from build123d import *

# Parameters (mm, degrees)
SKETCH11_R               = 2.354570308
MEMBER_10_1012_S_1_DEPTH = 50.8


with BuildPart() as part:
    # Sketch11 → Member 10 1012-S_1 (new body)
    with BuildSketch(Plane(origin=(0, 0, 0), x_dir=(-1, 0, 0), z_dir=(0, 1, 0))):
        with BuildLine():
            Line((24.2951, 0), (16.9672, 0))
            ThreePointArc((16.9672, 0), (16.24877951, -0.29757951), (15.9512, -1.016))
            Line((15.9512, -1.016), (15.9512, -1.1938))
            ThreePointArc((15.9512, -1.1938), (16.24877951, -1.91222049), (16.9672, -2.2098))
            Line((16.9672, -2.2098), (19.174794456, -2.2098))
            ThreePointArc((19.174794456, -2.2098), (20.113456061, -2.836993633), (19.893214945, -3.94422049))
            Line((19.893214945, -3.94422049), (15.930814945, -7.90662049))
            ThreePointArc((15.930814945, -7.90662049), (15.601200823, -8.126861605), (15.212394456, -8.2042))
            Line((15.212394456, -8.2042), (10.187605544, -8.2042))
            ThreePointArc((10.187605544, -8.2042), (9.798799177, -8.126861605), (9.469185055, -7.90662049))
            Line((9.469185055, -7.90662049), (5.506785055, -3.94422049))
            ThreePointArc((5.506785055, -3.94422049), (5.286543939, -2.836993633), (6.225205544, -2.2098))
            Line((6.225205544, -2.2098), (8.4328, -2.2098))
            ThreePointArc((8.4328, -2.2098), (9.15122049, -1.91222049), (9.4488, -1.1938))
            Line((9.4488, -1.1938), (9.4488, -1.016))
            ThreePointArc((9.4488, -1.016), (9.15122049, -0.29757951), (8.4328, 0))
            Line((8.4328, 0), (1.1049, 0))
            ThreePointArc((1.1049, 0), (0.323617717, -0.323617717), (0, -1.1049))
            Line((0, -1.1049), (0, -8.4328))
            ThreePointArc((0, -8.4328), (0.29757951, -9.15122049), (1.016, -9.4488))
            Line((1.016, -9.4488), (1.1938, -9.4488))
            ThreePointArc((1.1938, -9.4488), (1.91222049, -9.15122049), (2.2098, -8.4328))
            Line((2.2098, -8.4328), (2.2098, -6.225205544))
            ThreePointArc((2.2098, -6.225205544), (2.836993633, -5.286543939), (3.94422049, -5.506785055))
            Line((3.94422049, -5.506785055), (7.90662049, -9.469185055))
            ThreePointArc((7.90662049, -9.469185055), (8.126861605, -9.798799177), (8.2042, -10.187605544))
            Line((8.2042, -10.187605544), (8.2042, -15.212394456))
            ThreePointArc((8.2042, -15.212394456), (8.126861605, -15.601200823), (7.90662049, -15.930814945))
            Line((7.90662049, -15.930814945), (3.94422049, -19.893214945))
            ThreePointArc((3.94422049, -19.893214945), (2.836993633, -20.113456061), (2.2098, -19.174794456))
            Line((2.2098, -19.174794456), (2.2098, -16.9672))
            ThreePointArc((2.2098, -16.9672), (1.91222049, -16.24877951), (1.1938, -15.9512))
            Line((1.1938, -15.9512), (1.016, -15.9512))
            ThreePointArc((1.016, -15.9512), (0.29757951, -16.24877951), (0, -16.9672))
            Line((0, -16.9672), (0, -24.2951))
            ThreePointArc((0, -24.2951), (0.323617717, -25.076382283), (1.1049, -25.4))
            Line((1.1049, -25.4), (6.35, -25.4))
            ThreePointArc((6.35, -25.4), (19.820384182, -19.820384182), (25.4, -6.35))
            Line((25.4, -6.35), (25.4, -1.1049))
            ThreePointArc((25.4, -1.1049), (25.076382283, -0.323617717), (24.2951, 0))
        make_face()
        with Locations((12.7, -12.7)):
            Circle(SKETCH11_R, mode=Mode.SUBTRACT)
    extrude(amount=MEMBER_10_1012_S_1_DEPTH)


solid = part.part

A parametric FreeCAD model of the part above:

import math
import FreeCAD as App
import Part
import Sketcher
Q = App.Units.Quantity

doc = App.newDocument("Part")
params = doc.addObject("Spreadsheet::Sheet", "Params")
for row, (alias, value) in enumerate([
    ("sketch1_radius", "0.04 in"),
    ("sketch1_radius2", "0.75 in"),
    ("sketch1_width", "0.007 in"),
    ("pad1_length", "2 in"),
], start=1):
    params.set(f"A{row}", alias)
    params.set(f"B{row}", "=" + value)
    params.setAlias(f"B{row}", alias)

body = doc.addObject("PartDesign::Body", "Body")

sketch1 = body.newObject("Sketcher::SketchObject", "Sketch")
sketch1.AttachmentSupport = (doc.getObject("XZ_Plane"), [""])
sketch1.MapMode = "FlatFace"
sketch1.addGeometry([
    Part.LineSegment(App.Vector(-24.3, 0, 0), App.Vector(-16.97, 0, 0)),
    Part.ArcOfCircle(Part.Circle(App.Vector(-16.97, -1.02, 0), App.Vector(0, 0, 1), 1.02), math.radians(0), math.radians(90)),
    Part.LineSegment(App.Vector(-15.95, -1.02, 0), App.Vector(-15.95, -1.19, 0)),
    Part.ArcOfCircle(Part.Circle(App.Vector(-16.97, -1.19, 0), App.Vector(0, 0, 1), 1.02), math.radians(-90), math.radians(0)),
    Part.LineSegment(App.Vector(-16.97, -2.21, 0), App.Vector(-19.17, -2.21, 0)),
    Part.ArcOfCircle(Part.Circle(App.Vector(-19.17, -3.23, 0), App.Vector(0, 0, 1), 1.02), math.radians(90), math.radians(225)),
    Part.LineSegment(App.Vector(-19.89, -3.94, 0), App.Vector(-15.93, -7.91, 0)),
    Part.ArcOfCircle(Part.Circle(App.Vector(-15.21, -7.19, 0), App.Vector(0, 0, 1), 1.02), math.radians(-135), math.radians(-90)),
    Part.LineSegment(App.Vector(-15.21, -8.2, 0), App.Vector(-10.19, -8.2, 0)),
    Part.ArcOfCircle(Part.Circle(App.Vector(-10.19, -7.19, 0), App.Vector(0, 0, 1), 1.02), math.radians(-90), math.radians(-45)),
    Part.LineSegment(App.Vector(-9.47, -7.91, 0), App.Vector(-5.51, -3.94, 0)),
    Part.ArcOfCircle(Part.Circle(App.Vector(-6.23, -3.23, 0), App.Vector(0, 0, 1), 1.02), math.radians(-45), math.radians(90)),
    Part.LineSegment(App.Vector(-6.23, -2.21, 0), App.Vector(-8.43, -2.21, 0)),
    Part.ArcOfCircle(Part.Circle(App.Vector(-8.43, -1.19, 0), App.Vector(0, 0, 1), 1.02), math.radians(180), math.radians(270)),
    Part.LineSegment(App.Vector(-9.45, -1.19, 0), App.Vector(-9.45, -1.02, 0)),
    Part.ArcOfCircle(Part.Circle(App.Vector(-8.43, -1.02, 0), App.Vector(0, 0, 1), 1.02), math.radians(90), math.radians(180)),
    Part.LineSegment(App.Vector(-8.43, 0, 0), App.Vector(-1.1, 0, 0)),
    Part.ArcOfCircle(Part.Circle(App.Vector(-1.1, -1.1, 0), App.Vector(0, 0, 1), 1.1), math.radians(0), math.radians(90)),
    Part.LineSegment(App.Vector(0, -1.1, 0), App.Vector(0, -8.43, 0)),
    Part.ArcOfCircle(Part.Circle(App.Vector(-1.02, -8.43, 0), App.Vector(0, 0, 1), 1.02), math.radians(-90), math.radians(0)),
    Part.LineSegment(App.Vector(-1.02, -9.45, 0), App.Vector(-1.19, -9.45, 0)),
    Part.ArcOfCircle(Part.Circle(App.Vector(-1.19, -8.43, 0), App.Vector(0, 0, 1), 1.02), math.radians(180), math.radians(270)),
    Part.LineSegment(App.Vector(-2.21, -8.43, 0), App.Vector(-2.21, -6.23, 0)),
    Part.ArcOfCircle(Part.Circle(App.Vector(-3.23, -6.23, 0), App.Vector(0, 0, 1), 1.02), math.radians(0), math.radians(135)),
    Part.LineSegment(App.Vector(-3.94, -5.51, 0), App.Vector(-7.91, -9.47, 0)),
    Part.ArcOfCircle(Part.Circle(App.Vector(-7.19, -10.19, 0), App.Vector(0, 0, 1), 1.02), math.radians(135), math.radians(180)),
    Part.LineSegment(App.Vector(-8.2, -10.19, 0), App.Vector(-8.2, -15.21, 0)),
    Part.ArcOfCircle(Part.Circle(App.Vector(-7.19, -15.21, 0), App.Vector(0, 0, 1), 1.02), math.radians(180), math.radians(225)),
    Part.LineSegment(App.Vector(-7.91, -15.93, 0), App.Vector(-3.94, -19.89, 0)),
    Part.ArcOfCircle(Part.Circle(App.Vector(-3.23, -19.17, 0), App.Vector(0, 0, 1), 1.02), math.radians(-135), math.radians(0)),
    Part.LineSegment(App.Vector(-2.21, -19.17, 0), App.Vector(-2.21, -16.97, 0)),
    Part.ArcOfCircle(Part.Circle(App.Vector(-1.19, -16.97, 0), App.Vector(0, 0, 1), 1.02), math.radians(90), math.radians(180)),
    Part.LineSegment(App.Vector(-1.19, -15.95, 0), App.Vector(-1.02, -15.95, 0)),
    Part.ArcOfCircle(Part.Circle(App.Vector(-1.02, -16.97, 0), App.Vector(0, 0, 1), 1.02), math.radians(0), math.radians(90)),
    Part.LineSegment(App.Vector(0, -16.97, 0), App.Vector(0, -24.3, 0)),
    Part.ArcOfCircle(Part.Circle(App.Vector(-1.1, -24.3, 0), App.Vector(0, 0, 1), 1.1), math.radians(-90), math.radians(0)),
    Part.LineSegment(App.Vector(-1.1, -25.4, 0), App.Vector(-6.35, -25.4, 0)),
    Part.ArcOfCircle(Part.Circle(App.Vector(-6.35, -6.35, 0), App.Vector(0, 0, 1), 19.05), math.radians(180), math.radians(270)),
    Part.LineSegment(App.Vector(-25.4, -6.35, 0), App.Vector(-25.4, -1.1, 0)),
    Part.ArcOfCircle(Part.Circle(App.Vector(-24.3, -1.1, 0), App.Vector(0, 0, 1), 1.1), math.radians(90), math.radians(180)),
    Part.Circle(App.Vector(-12.7, -12.7, 0), App.Vector(0, 0, 1), 2.35),
], False)
sketch1.addConstraint([
    Sketcher.Constraint("Tangent", 0, 2, 1, 2),
    Sketcher.Constraint("Tangent", 1, 1, 2, 1),
    Sketcher.Constraint("Tangent", 2, 2, 3, 2),
    Sketcher.Constraint("Tangent", 3, 1, 4, 1),
    Sketcher.Constraint("Tangent", 4, 2, 5, 1),
    Sketcher.Constraint("Tangent", 5, 2, 6, 1),
    Sketcher.Constraint("Tangent", 6, 2, 7, 1),
    Sketcher.Constraint("Tangent", 7, 2, 8, 1),
    Sketcher.Constraint("Tangent", 8, 2, 9, 1),
    Sketcher.Constraint("Tangent", 9, 2, 10, 1),
    Sketcher.Constraint("Tangent", 10, 2, 11, 1),
    Sketcher.Constraint("Tangent", 11, 2, 12, 1),
    Sketcher.Constraint("Tangent", 12, 2, 13, 2),
    Sketcher.Constraint("Tangent", 13, 1, 14, 1),
    Sketcher.Constraint("Tangent", 14, 2, 15, 2),
    Sketcher.Constraint("Tangent", 15, 1, 16, 1),
    Sketcher.Constraint("Tangent", 16, 2, 17, 2),
    Sketcher.Constraint("Tangent", 17, 1, 18, 1),
    Sketcher.Constraint("Tangent", 18, 2, 19, 2),
    Sketcher.Constraint("Tangent", 19, 1, 20, 1),
    Sketcher.Constraint("Tangent", 20, 2, 21, 2),
    Sketcher.Constraint("Tangent", 21, 1, 22, 1),
    Sketcher.Constraint("Tangent", 22, 2, 23, 1),
    Sketcher.Constraint("Tangent", 23, 2, 24, 1),
    Sketcher.Constraint("Tangent", 24, 2, 25, 1),
    Sketcher.Constraint("Tangent", 25, 2, 26, 1),
    Sketcher.Constraint("Tangent", 26, 2, 27, 1),
    Sketcher.Constraint("Tangent", 27, 2, 28, 1),
    Sketcher.Constraint("Tangent", 28, 2, 29, 1),
    Sketcher.Constraint("Tangent", 29, 2, 30, 1),
    Sketcher.Constraint("Tangent", 30, 2, 31, 2),
    Sketcher.Constraint("Tangent", 31, 1, 32, 1),
    Sketcher.Constraint("Tangent", 32, 2, 33, 2),
    Sketcher.Constraint("Tangent", 33, 1, 34, 1),
    Sketcher.Constraint("Tangent", 34, 2, 35, 2),
    Sketcher.Constraint("Tangent", 35, 1, 36, 1),
    Sketcher.Constraint("Tangent", 36, 2, 37, 2),
    Sketcher.Constraint("Tangent", 37, 1, 38, 1),
    Sketcher.Constraint("Tangent", 38, 2, 39, 2),
    Sketcher.Constraint("Tangent", 39, 1, 0, 1),
    Sketcher.Constraint("Horizontal", 0),
    Sketcher.Constraint("Vertical", 2),
    Sketcher.Constraint("Horizontal", 4),
    Sketcher.Constraint("Horizontal", 8),
    Sketcher.Constraint("Horizontal", 12),
    Sketcher.Constraint("Vertical", 14),
    Sketcher.Constraint("Horizontal", 16),
    Sketcher.Constraint("Vertical", 18),
    Sketcher.Constraint("Horizontal", 20),
    Sketcher.Constraint("Vertical", 22),
    Sketcher.Constraint("Vertical", 26),
    Sketcher.Constraint("Vertical", 30),
    Sketcher.Constraint("Horizontal", 32),
    Sketcher.Constraint("Vertical", 34),
    Sketcher.Constraint("Horizontal", 36),
    Sketcher.Constraint("Vertical", 38),
    Sketcher.Constraint("Equal", 1, 3),
    Sketcher.Constraint("Equal", 3, 5),
    Sketcher.Constraint("Equal", 5, 7),
    Sketcher.Constraint("Equal", 7, 9),
    Sketcher.Constraint("Equal", 9, 11),
    Sketcher.Constraint("Equal", 11, 13),
    Sketcher.Constraint("Equal", 13, 15),
    Sketcher.Constraint("Equal", 15, 19),
    Sketcher.Constraint("Equal", 19, 21),
    Sketcher.Constraint("Equal", 21, 23),
    Sketcher.Constraint("Equal", 23, 25),
    Sketcher.Constraint("Equal", 25, 27),
    Sketcher.Constraint("Equal", 27, 29),
    Sketcher.Constraint("Equal", 29, 31),
    Sketcher.Constraint("Equal", 31, 33),
    Sketcher.Constraint("Equal", 17, 35),
    Sketcher.Constraint("Equal", 35, 39),
    Sketcher.Constraint("PointOnObject", 0, 2, -1),
    Sketcher.Constraint("PointOnObject", 15, 1, -1),
    Sketcher.Constraint("PointOnObject", 17, 1, -2),
    Sketcher.Constraint("PointOnObject", 33, 1, -2),
    Sketcher.Constraint("Perpendicular", 6, 10),
    Sketcher.Constraint("Parallel", 10, 24),
    Sketcher.Constraint("Perpendicular", 24, 28),
    Sketcher.Constraint("Horizontal", 5, 3, 11, 3),
    Sketcher.Constraint("Horizontal", 6, 2, 9, 2),
    Sketcher.Constraint("Vertical", 23, 3, 29, 3),
    Sketcher.Constraint("Equal", 4, 12),
    Sketcher.Constraint("Equal", 0, 16),
    Sketcher.Constraint("Equal", 32, 2),
    Sketcher.Constraint("Equal", 16, 18),
    Sketcher.Constraint("Equal", 12, 22),
    Sketcher.Constraint("Equal", 8, 26),
    Sketcher.Constraint("Equal", 22, 30),
    Sketcher.Constraint("Equal", 18, 34),
    Sketcher.Constraint("Equal", 36, 38),
    Sketcher.Constraint("Radius", 1, Q("0.04 in")),
    Sketcher.Constraint("Radius", 37, Q("0.75 in")),
    Sketcher.Constraint("DistanceY", 35, 1, -1, 1, Q("1 in")),
    Sketcher.Constraint("DistanceX", 40, 3, -1, 1, Q("0.5 in")),
    Sketcher.Constraint("DistanceY", 40, 3, -1, 1, Q("0.5 in")),
    Sketcher.Constraint("Radius", 17, Q("0.0435 in")),
    Sketcher.Constraint("DistanceX", 20, 2, 20, 1, Q("0.007 in")),
    Sketcher.Constraint("Diameter", 40, 4.709141),
    Sketcher.Constraint("DistanceX", 0, 1, 0, 2, Q("0.2885 in")),
    Sketcher.Constraint("DistanceY", 7, 3, -1, 1, Q("0.283 in")),
    Sketcher.Constraint("DistanceX", 8, 1, 8, 2, 5.024789),
])
sketch1.setExpression("Constraints[92]", "Params.sketch1_radius")
sketch1.setExpression("Constraints[93]", "Params.sketch1_radius2")
sketch1.setExpression("Constraints[98]", "Params.sketch1_width")
pad1 = body.newObject("PartDesign::Pad", "Pad")
pad1.Profile = sketch1
pad1.setExpression("Length", "Params.pad1_length")
pad1.Reversed = True

doc.recompute()
